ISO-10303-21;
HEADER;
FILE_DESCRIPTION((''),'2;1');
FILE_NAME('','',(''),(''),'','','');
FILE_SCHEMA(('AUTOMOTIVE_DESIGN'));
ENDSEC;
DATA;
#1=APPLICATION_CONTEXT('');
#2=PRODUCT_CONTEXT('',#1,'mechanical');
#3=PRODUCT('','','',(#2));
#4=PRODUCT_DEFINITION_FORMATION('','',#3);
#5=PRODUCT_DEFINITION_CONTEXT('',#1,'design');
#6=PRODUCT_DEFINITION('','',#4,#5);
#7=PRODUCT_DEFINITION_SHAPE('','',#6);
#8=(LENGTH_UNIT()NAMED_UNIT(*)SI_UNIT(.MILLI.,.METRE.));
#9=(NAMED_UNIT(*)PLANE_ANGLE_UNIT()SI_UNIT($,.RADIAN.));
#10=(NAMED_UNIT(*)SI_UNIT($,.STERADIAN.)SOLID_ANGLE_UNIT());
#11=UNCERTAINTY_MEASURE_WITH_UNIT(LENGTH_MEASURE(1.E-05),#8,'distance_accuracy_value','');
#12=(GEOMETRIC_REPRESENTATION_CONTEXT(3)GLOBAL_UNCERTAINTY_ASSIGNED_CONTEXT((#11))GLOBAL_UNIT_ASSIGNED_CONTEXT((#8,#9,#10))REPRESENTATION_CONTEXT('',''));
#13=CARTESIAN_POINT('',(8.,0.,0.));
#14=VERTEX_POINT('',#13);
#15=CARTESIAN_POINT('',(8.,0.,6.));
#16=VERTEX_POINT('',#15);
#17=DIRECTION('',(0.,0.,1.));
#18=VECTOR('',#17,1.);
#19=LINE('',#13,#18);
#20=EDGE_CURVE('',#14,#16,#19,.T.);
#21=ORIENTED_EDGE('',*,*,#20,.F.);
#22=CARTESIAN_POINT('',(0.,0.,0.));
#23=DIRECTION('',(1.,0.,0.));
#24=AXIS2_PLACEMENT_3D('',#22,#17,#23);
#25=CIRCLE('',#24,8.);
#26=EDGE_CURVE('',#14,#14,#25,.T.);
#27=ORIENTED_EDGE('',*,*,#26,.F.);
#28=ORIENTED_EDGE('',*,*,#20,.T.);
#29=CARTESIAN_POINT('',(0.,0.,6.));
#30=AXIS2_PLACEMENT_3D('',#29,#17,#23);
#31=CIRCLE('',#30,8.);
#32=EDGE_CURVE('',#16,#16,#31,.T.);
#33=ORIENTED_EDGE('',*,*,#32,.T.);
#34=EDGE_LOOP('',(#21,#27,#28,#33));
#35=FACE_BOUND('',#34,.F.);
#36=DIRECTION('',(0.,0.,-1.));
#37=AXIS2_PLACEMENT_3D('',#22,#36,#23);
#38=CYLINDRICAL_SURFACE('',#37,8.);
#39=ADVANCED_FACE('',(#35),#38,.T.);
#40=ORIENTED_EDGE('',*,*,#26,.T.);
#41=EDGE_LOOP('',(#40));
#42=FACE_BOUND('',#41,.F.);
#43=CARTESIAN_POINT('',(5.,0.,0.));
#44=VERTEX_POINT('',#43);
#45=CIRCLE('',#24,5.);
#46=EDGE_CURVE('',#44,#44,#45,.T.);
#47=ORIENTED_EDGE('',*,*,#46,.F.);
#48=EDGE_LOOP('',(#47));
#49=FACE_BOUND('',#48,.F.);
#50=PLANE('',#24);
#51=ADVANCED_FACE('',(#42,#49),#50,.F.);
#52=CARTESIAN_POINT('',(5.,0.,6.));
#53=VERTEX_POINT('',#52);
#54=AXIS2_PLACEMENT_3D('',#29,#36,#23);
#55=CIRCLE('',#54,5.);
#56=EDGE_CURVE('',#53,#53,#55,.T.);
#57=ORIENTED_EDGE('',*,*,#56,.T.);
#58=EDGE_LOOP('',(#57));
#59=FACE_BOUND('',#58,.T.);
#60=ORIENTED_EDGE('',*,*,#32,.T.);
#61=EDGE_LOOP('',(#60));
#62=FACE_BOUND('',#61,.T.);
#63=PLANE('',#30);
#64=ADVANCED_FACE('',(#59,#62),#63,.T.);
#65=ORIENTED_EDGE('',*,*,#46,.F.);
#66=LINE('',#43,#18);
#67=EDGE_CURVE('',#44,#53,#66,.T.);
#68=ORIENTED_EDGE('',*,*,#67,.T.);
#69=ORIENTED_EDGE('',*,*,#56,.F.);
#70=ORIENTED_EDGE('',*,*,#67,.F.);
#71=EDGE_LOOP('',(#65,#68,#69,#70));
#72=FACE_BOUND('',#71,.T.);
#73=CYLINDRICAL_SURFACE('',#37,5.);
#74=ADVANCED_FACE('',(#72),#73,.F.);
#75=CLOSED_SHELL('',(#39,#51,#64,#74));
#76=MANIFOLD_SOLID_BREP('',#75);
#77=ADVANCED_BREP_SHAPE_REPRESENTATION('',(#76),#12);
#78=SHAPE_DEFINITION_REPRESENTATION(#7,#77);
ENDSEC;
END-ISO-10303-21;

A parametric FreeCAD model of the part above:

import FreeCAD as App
import Part
import Sketcher

doc = App.newDocument("Part")
body = doc.addObject("PartDesign::Body", "Body")

sketch1 = body.newObject("Sketcher::SketchObject", "Sketch")
sketch1.AttachmentSupport = (doc.getObject("XY_Plane"), [""])
sketch1.MapMode = "FlatFace"
sketch1.addGeometry(Part.Circle(App.Vector(0, 0, 0), App.Vector(0, 0, 1), 8), False)
sketch1.addConstraint([
    Sketcher.Constraint("Coincident", 0, 3, -1, 1),
    Sketcher.Constraint("Diameter", 0, 16.0),
])
pad1 = body.newObject("PartDesign::Pad", "Pad")
pad1.Profile = sketch1
pad1.Length = 6

sketch2 = body.newObject("Sketcher::SketchObject", "Sketch001")
sketch2.AttachmentSupport = (doc.getObject("XY_Plane"), [""])
sketch2.MapMode = "FlatFace"
sketch2.addGeometry(Part.Circle(App.Vector(0, 0, 0), App.Vector(0, 0, 1), 5), False)
sketch2.addConstraint([
    Sketcher.Constraint("Coincident", 0, 3, -1, 1),
    Sketcher.Constraint("Diameter", 0, 10.0),
])
pocket1 = body.newObject("PartDesign::Pocket", "Pocket")
pocket1.Profile = sketch2
pocket1.Length = 10
pocket1.Reversed = True

doc.recompute()
